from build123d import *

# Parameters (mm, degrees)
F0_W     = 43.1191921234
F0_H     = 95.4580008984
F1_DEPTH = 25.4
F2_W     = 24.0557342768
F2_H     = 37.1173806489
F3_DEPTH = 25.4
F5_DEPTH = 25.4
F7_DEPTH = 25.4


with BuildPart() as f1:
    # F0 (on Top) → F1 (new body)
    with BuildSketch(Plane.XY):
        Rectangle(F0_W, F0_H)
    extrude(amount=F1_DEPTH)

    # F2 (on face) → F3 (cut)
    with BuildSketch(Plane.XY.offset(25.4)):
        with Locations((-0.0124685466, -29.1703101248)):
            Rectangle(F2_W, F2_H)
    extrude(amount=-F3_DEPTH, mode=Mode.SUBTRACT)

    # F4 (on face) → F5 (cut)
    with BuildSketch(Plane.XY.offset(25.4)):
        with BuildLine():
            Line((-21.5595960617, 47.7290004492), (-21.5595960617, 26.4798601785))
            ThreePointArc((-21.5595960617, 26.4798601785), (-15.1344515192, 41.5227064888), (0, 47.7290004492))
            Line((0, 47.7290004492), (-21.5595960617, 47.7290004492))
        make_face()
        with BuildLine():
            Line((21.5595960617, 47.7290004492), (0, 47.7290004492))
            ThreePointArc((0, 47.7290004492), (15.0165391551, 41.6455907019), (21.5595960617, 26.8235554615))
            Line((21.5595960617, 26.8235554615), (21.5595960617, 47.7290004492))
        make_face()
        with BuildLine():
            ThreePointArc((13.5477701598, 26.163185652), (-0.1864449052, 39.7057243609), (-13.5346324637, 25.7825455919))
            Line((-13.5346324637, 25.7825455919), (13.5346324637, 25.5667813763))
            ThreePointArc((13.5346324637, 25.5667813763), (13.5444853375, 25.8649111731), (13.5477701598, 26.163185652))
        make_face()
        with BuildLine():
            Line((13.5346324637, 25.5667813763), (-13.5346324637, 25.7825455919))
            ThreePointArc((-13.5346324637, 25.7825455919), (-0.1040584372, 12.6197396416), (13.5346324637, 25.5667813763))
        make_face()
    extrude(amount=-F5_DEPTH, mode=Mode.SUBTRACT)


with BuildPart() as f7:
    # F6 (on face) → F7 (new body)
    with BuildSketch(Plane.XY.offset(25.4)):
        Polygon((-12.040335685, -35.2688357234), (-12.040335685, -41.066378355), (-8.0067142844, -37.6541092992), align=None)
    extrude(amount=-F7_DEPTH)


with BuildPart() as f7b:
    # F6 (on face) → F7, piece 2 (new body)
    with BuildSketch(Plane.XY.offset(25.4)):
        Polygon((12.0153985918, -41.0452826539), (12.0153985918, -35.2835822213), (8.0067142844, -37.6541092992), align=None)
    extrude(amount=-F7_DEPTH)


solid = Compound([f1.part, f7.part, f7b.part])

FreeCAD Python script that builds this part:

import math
import FreeCAD as App
import Part
import Sketcher
Q = App.Units.Quantity

doc = App.newDocument("Part")
body = doc.addObject("PartDesign::Body", "Body")

# Sketch on XY plane
sketch1 = body.newObject("Sketcher::SketchObject", "Sketch")
sketch1.AttachmentSupport = (doc.getObject("XY_Plane"), [""])
sketch1.MapMode = "FlatFace"
sketch1.addGeometry(Part.LineSegment(App.Vector(-22, 48, 0), App.Vector(-22, -48, 0)), False)
sketch1.addGeometry(Part.LineSegment(App.Vector(-22, -48, 0), App.Vector(22, -48, 0)), False)
sketch1.addGeometry(Part.LineSegment(App.Vector(22, -48, 0), App.Vector(22, 48, 0)), False)
sketch1.addGeometry(Part.LineSegment(App.Vector(22, 48, 0), App.Vector(-22, 48, 0)), False)
sketch1.addConstraint(Sketcher.Constraint("Coincident", 0, 2, 1, 1))
sketch1.addConstraint(Sketcher.Constraint("Coincident", 1, 2, 2, 1))
sketch1.addConstraint(Sketcher.Constraint("Coincident", 2, 2, 3, 1))
sketch1.addConstraint(Sketcher.Constraint("Coincident", 3, 2, 0, 1))
sketch1.addConstraint(Sketcher.Constraint("Vertical", 0))
sketch1.addConstraint(Sketcher.Constraint("Horizontal", 1))
sketch1.addConstraint(Sketcher.Constraint("Vertical", 2))
sketch1.addConstraint(Sketcher.Constraint("Horizontal", 3))
sketch1.addConstraint(Sketcher.Constraint("Symmetric", 0, 2, 2, 2, -1, 1))
sketch1.addConstraint(Sketcher.Constraint("DistanceY", 0, 2, 0, 1, 95.458001))
sketch1.addConstraint(Sketcher.Constraint("DistanceX", 1, 1, 1, 2, 43.119192))
pad1 = body.newObject("PartDesign::Pad", "Pad")
pad1.Profile = sketch1
pad1.Length = Q("1 in")

# Sketch on XY plane
sketch2 = body.newObject("Sketcher::SketchObject", "Sketch001")
sketch2.AttachmentSupport = (doc.getObject("XY_Plane"), [""])
sketch2.MapMode = "FlatFace"
sketch2.AttachmentOffset = App.Placement(App.Vector(0, 0, 1 * 25.4), App.Rotation())
sketch2.addGeometry(Part.LineSegment(App.Vector(-12, -11, 0), App.Vector(-12, -48, 0)), False)
sketch2.addGeometry(Part.LineSegment(App.Vector(-12, -48, 0), App.Vector(12, -48, 0)), False)
sketch2.addGeometry(Part.LineSegment(App.Vector(12, -48, 0), App.Vector(12, -11, 0)), False)
sketch2.addGeometry(Part.LineSegment(App.Vector(12, -11, 0), App.Vector(-12, -11, 0)), False)
sketch2.addConstraint(Sketcher.Constraint("Coincident", 0, 2, 1, 1))
sketch2.addConstraint(Sketcher.Constraint("Coincident", 1, 2, 2, 1))
sketch2.addConstraint(Sketcher.Constraint("Coincident", 2, 2, 3, 1))
sketch2.addConstraint(Sketcher.Constraint("Coincident", 3, 2, 0, 1))
sketch2.addConstraint(Sketcher.Constraint("Vertical", 0))
sketch2.addConstraint(Sketcher.Constraint("Horizontal", 1))
sketch2.addConstraint(Sketcher.Constraint("Vertical", 2))
sketch2.addConstraint(Sketcher.Constraint("Horizontal", 3))
sketch2.addConstraint(Sketcher.Constraint("DistanceY", 0, 2, 0, 1, 37.117381))
sketch2.addConstraint(Sketcher.Constraint("DistanceY", 0, 2, -1, 1, 47.729))
sketch2.addConstraint(Sketcher.Constraint("DistanceX", -1, 1, 1, 2, 12.015399))
sketch2.addConstraint(Sketcher.Constraint("DistanceX", 1, 1, 1, 2, 24.055734))
pocket1 = body.newObject("PartDesign::Pocket", "Pocket")
pocket1.Profile = sketch2
pocket1.Length = Q("1 in")

# Sketch on XY plane
sketch3 = body.newObject("Sketcher::SketchObject", "Sketch002")
sketch3.AttachmentSupport = (doc.getObject("XY_Plane"), [""])
sketch3.MapMode = "FlatFace"
sketch3.AttachmentOffset = App.Placement(App.Vector(0, 0, 1 * 25.4), App.Rotation())
sketch3.addGeometry(Part.LineSegment(App.Vector(-21.6, 47.7, 0), App.Vector(-21.6, 26.5, 0)), False)
sketch3.addGeometry(Part.ArcOfCircle(Part.Circle(App.Vector(0, 26.2, 0), App.Vector(0, 0, 1), 21.6), math.radians(90), math.radians(179)), False)
sketch3.addGeometry(Part.LineSegment(App.Vector(0, 47.7, 0), App.Vector(-21.6, 47.7, 0)), False)
sketch3.addGeometry(Part.LineSegment(App.Vector(21.6, 47.7, 0), App.Vector(0, 47.7, 0)), False)
sketch3.addGeometry(Part.ArcOfCircle(Part.Circle(App.Vector(0, 26.2, 0), App.Vector(0, 0, 1), 21.6), math.radians(2), math.radians(90)), False)
sketch3.addGeometry(Part.LineSegment(App.Vector(21.6, 26.8, 0), App.Vector(21.6, 47.7, 0)), False)
sketch3.addGeometry(Part.ArcOfCircle(Part.Circle(App.Vector(0, 26.2, 0), App.Vector(0, 0, 1), 13.5), math.radians(0), math.radians(182)), False)
sketch3.addGeometry(Part.ArcOfCircle(Part.Circle(App.Vector(0, 26.2, 0), App.Vector(0, 0, 1), 13.5), math.radians(-178), math.radians(-3)), False)
sketch3.addGeometry(Part.ArcOfCircle(Part.Circle(App.Vector(0, 26.2, 0), App.Vector(0, 0, 1), 13.5), math.radians(-2.52), math.radians(0)), False)
sketch3.addConstraint(Sketcher.Constraint("Coincident", 0, 2, 1, 2))
sketch3.addConstraint(Sketcher.Constraint("Coincident", 1, 1, 2, 1))
sketch3.addConstraint(Sketcher.Constraint("Coincident", 2, 2, 0, 1))
sketch3.addConstraint(Sketcher.Constraint("Coincident", 3, 2, 4, 2))
sketch3.addConstraint(Sketcher.Constraint("Coincident", 4, 1, 5, 1))
sketch3.addConstraint(Sketcher.Constraint("Coincident", 5, 2, 3, 1))
sketch3.addConstraint(Sketcher.Constraint("Tangent", 6, 2, 7, 1))
sketch3.addConstraint(Sketcher.Constraint("Tangent", 7, 2, 8, 1))
sketch3.addConstraint(Sketcher.Constraint("Coincident", 8, 2, 6, 1))
sketch3.addConstraint(Sketcher.Constraint("Vertical", 0))
sketch3.addConstraint(Sketcher.Constraint("Horizontal", 2))
sketch3.addConstraint(Sketcher.Constraint("Horizontal", 3))
sketch3.addConstraint(Sketcher.Constraint("Vertical", 5))
sketch3.addConstraint(Sketcher.Constraint("Coincident", 4, 3, 1, 3))
sketch3.addConstraint(Sketcher.Constraint("Coincident", 6, 3, 1, 3))
sketch3.addConstraint(Sketcher.Constraint("Coincident", 3, 2, 1, 1))
sketch3.addConstraint(Sketcher.Constraint("Equal", 7, 8))
sketch3.addConstraint(Sketcher.Constraint("PointOnObject", 1, 1, -2))
sketch3.addConstraint(Sketcher.Constraint("Horizontal", 7, 3, 8, 2))
sketch3.addConstraint(Sketcher.Constraint("Equal", 2, 3))
sketch3.addConstraint(Sketcher.Constraint("Radius", 1, 21.565815))
sketch3.addConstraint(Sketcher.Constraint("Radius", 6, 13.543876))
sketch3.addConstraint(Sketcher.Constraint("DistanceY", 0, 2, 0, 1, 21.24914))
sketch3.addConstraint(Sketcher.Constraint("DistanceY", -1, 1, 1, 1, 47.729))
sketch3.addConstraint(Sketcher.Constraint("DistanceX", 8, 3, 4, 1, 21.555702))
sketch3.addConstraint(Sketcher.Constraint("DistanceY", -1, 1, 7, 2, 25.566781))
sketch3.addConstraint(Sketcher.Constraint("DistanceY", 6, 2, 1, 3, 0.38064))
pocket2 = body.newObject("PartDesign::Pocket", "Pocket001")
pocket2.Profile = sketch3
pocket2.Length = Q("1 in")
body2 = doc.addObject("PartDesign::Body", "Body001")

# Sketch on XY plane
sketch4 = body2.newObject("Sketcher::SketchObject", "Sketch003")
sketch4.AttachmentSupport = (doc.getObject("XY_Plane001"), [""])
sketch4.MapMode = "FlatFace"
sketch4.AttachmentOffset = App.Placement(App.Vector(0, 0, 1 * 25.4), App.Rotation())
sketch4.addGeometry(Part.LineSegment(App.Vector(-12, -35.3, 0), App.Vector(-12, -41.1, 0)), False)
sketch4.addGeometry(Part.LineSegment(App.Vector(-12, -41.1, 0), App.Vector(-8, -37.7, 0)), False)
sketch4.addGeometry(Part.LineSegment(App.Vector(-8, -37.7, 0), App.Vector(-12, -35.3, 0)), False)
sketch4.addConstraint(Sketcher.Constraint("Coincident", 0, 2, 1, 1))
sketch4.addConstraint(Sketcher.Constraint("Coincident", 1, 2, 2, 1))
sketch4.addConstraint(Sketcher.Constraint("Coincident", 2, 2, 0, 1))
sketch4.addConstraint(Sketcher.Constraint("Vertical", 0))
sketch4.addConstraint(Sketcher.Constraint("Distance", 1, 5.28334))
sketch4.addConstraint(Sketcher.Constraint("Distance", 2, 4.686111))
sketch4.addConstraint(Sketcher.Constraint("DistanceY", 0, 2, 0, 1, 5.797543))
sketch4.addConstraint(Sketcher.Constraint("DistanceY", 0, 2, -1, 1, 41.066378))
sketch4.addConstraint(Sketcher.Constraint("DistanceX", 0, 2, -1, 1, 12.040336))
pad2 = body2.newObject("PartDesign::Pad", "Pad001")
pad2.Profile = sketch4
pad2.Length = Q("1 in")
pad2.Reversed = True
body3 = doc.addObject("PartDesign::Body", "Body002")

# Sketch on XY plane
sketch5 = body3.newObject("Sketcher::SketchObject", "Sketch004")
sketch5.AttachmentSupport = (doc.getObject("XY_Plane002"), [""])
sketch5.MapMode = "FlatFace"
sketch5.AttachmentOffset = App.Placement(App.Vector(0, 0, 1 * 25.4), App.Rotation())
sketch5.addGeometry(Part.LineSegment(App.Vector(12, -41, 0), App.Vector(12, -35.3, 0)), False)
sketch5.addGeometry(Part.LineSegment(App.Vector(12, -35.3, 0), App.Vector(8, -37.7, 0)), False)
sketch5.addGeometry(Part.LineSegment(App.Vector(8, -37.7, 0), App.Vector(12, -41, 0)), False)
sketch5.addConstraint(Sketcher.Constraint("Coincident", 0, 2, 1, 1))
sketch5.addConstraint(Sketcher.Constraint("Coincident", 1, 2, 2, 1))
sketch5.addConstraint(Sketcher.Constraint("Coincident", 2, 2, 0, 1))
sketch5.addConstraint(Sketcher.Constraint("Vertical", 0))
sketch5.addConstraint(Sketcher.Constraint("DistanceY", 0, 1, 0, 2, 5.7617))
sketch5.addConstraint(Sketcher.Constraint("DistanceX", -1, 1, 0, 2, 12.015399))
sketch5.addConstraint(Sketcher.Constraint("Distance", 1, 4.65714))
sketch5.addConstraint(Sketcher.Constraint("DistanceY", 1, 2, -1, 1, 37.654109))
sketch5.addConstraint(Sketcher.Constraint("Distance", 2, 5.250677))
pad3 = body3.newObject("PartDesign::Pad", "Pad002")
pad3.Profile = sketch5
pad3.Length = Q("1 in")
pad3.Reversed = True

doc.recompute()
